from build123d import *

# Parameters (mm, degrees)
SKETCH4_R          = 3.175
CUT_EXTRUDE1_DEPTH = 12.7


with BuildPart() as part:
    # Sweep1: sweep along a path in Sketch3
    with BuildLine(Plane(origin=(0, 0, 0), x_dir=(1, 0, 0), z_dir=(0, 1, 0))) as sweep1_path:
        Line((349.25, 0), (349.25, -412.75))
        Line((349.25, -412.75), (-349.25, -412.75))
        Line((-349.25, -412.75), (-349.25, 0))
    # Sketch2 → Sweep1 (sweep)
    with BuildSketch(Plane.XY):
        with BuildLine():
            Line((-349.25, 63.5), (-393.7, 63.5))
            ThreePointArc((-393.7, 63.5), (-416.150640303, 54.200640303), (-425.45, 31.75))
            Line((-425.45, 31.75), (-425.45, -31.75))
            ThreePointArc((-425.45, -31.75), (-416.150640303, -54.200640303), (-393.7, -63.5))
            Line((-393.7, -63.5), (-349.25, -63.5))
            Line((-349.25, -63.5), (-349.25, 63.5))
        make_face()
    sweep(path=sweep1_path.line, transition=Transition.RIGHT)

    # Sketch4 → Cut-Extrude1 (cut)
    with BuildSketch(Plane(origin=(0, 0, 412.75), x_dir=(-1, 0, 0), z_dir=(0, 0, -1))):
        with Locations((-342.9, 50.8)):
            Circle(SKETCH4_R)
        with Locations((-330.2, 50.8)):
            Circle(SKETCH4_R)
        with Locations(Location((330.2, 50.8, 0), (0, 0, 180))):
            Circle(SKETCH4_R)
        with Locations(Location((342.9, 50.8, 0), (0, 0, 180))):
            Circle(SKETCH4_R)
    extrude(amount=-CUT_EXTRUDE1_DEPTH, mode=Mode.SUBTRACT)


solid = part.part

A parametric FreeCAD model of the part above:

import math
import FreeCAD as App
import Part
import Sketcher
Q = App.Units.Quantity

doc = App.newDocument("Part")
body = doc.addObject("PartDesign::Body", "Body")

sketch1 = body.newObject("Sketcher::SketchObject", "Sketch")
sketch1.AttachmentSupport = (doc.getObject("XY_Plane"), [""])
sketch1.MapMode = "FlatFace"
sketch1.addGeometry(Part.LineSegment(App.Vector(-349, 64, 0), App.Vector(-394, 64, 0)), False)
sketch1.addGeometry(Part.ArcOfCircle(Part.Circle(App.Vector(-394, 32, 0), App.Vector(0, 0, 1), 32), math.radians(90), math.radians(180)), False)
sketch1.addGeometry(Part.LineSegment(App.Vector(-425, 32, 0), App.Vector(-425, -32, 0)), False)
sketch1.addGeometry(Part.ArcOfCircle(Part.Circle(App.Vector(-394, -32, 0), App.Vector(0, 0, 1), 32), math.radians(180), math.radians(270)), False)
sketch1.addGeometry(Part.LineSegment(App.Vector(-394, -64, 0), App.Vector(-349, -64, 0)), False)
sketch1.addGeometry(Part.LineSegment(App.Vector(-349, -64, 0), App.Vector(-349, 64, 0)), False)
sketch1.addConstraint(Sketcher.Constraint("Tangent", 0, 2, 1, 1))
sketch1.addConstraint(Sketcher.Constraint("Tangent", 1, 2, 2, 1))
sketch1.addConstraint(Sketcher.Constraint("Tangent", 2, 2, 3, 1))
sketch1.addConstraint(Sketcher.Constraint("Tangent", 3, 2, 4, 1))
sketch1.addConstraint(Sketcher.Constraint("Coincident", 4, 2, 5, 1))
sketch1.addConstraint(Sketcher.Constraint("Coincident", 5, 2, 0, 1))
sketch1.addConstraint(Sketcher.Constraint("Horizontal", 0))
sketch1.addConstraint(Sketcher.Constraint("Vertical", 2))
sketch1.addConstraint(Sketcher.Constraint("Horizontal", 4))
sketch1.addConstraint(Sketcher.Constraint("Vertical", 5))
sketch1.addConstraint(Sketcher.Constraint("Equal", 1, 3))
sketch1.addConstraint(Sketcher.Constraint("DistanceY", 5, 1, 5, 2, Q("5 in")))
sketch1.addConstraint(Sketcher.Constraint("Radius", 1, Q("1.25 in")))
sketch1.addConstraint(Sketcher.Constraint("DistanceX", 2, 2, 4, 2, Q("3 in")))
sketch1.addConstraint(Sketcher.Constraint("DistanceX", 1, 3, -1, 1, Q("15.5 in")))
sketch1.addConstraint(Sketcher.Constraint("DistanceY", -1, 1, 0, 2, Q("2.5 in")))

sketch2 = body.newObject("Sketcher::SketchObject", "Sketch001")
sketch2.AttachmentSupport = (doc.getObject("XZ_Plane"), [""])
sketch2.MapMode = "FlatFace"
sketch2.addGeometry(Part.LineSegment(App.Vector(349, 0, 0), App.Vector(349, 413, 0)), False)
sketch2.addGeometry(Part.LineSegment(App.Vector(349, 413, 0), App.Vector(-349, 413, 0)), False)
sketch2.addGeometry(Part.LineSegment(App.Vector(-349, 413, 0), App.Vector(-349, 0, 0)), False)
sketch2.addConstraint(Sketcher.Constraint("Coincident", 0, 2, 1, 1))
sketch2.addConstraint(Sketcher.Constraint("Coincident", 1, 2, 2, 1))
sketch2.addConstraint(Sketcher.Constraint("Vertical", 0))
sketch2.addConstraint(Sketcher.Constraint("Horizontal", 1))
sketch2.addConstraint(Sketcher.Constraint("Vertical", 2))
sketch2.addConstraint(Sketcher.Constraint("Symmetric", 0, 1, 2, 2, -1, 1))
sketch2.addConstraint(Sketcher.Constraint("PointOnObject", 0, 1, -1))
sketch2.addConstraint(Sketcher.Constraint("DistanceX", 1, 2, 1, 1, Q("27.5 in")))
sketch2.addConstraint(Sketcher.Constraint("DistanceY", 0, 1, 0, 2, Q("16.25 in")))
doc.recompute()

additivepipe = body.newObject("PartDesign::AdditivePipe", "AdditivePipe")
additivepipe.Profile = sketch1
additivepipe.Spine = (sketch2, ["Edge1", "Edge2", "Edge3"])
additivepipe.Transition = "Right corner"

sketch3 = body.newObject("Sketcher::SketchObject", "Sketch002")
sketch3.AttachmentSupport = (doc.getObject("XY_Plane"), [""])
sketch3.MapMode = "FlatFace"
sketch3.AttachmentOffset = App.Placement(App.Vector(0, 0, 16.25 * 25.4), App.Rotation())
sketch3.addGeometry(Part.Circle(App.Vector(342.9, 50.8, 0), App.Vector(0, 0, 1), 3.2), False)
sketch3.addGeometry(Part.Circle(App.Vector(330.2, 50.8, 0), App.Vector(0, 0, 1), 3.2), False)
sketch3.addGeometry(Part.Circle(App.Vector(-330.2, 50.8, 0), App.Vector(0, 0, 1), 3.2), False)
sketch3.addGeometry(Part.Circle(App.Vector(-342.9, 50.8, 0), App.Vector(0, 0, 1), 3.2), False)
sketch3.addConstraint(Sketcher.Constraint("Equal", 0, 1))
sketch3.addConstraint(Sketcher.Constraint("Equal", 1, 2))
sketch3.addConstraint(Sketcher.Constraint("Equal", 2, 3))
sketch3.addConstraint(Sketcher.Constraint("Symmetric", 1, 3, 2, 3, -2))
sketch3.addConstraint(Sketcher.Constraint("Symmetric", 0, 3, 3, 3, -2))
sketch3.addConstraint(Sketcher.Constraint("Horizontal", 0, 3, 1, 3))
sketch3.addConstraint(Sketcher.Constraint("Diameter", 0, Q("0.25 in")))
sketch3.addConstraint(Sketcher.Constraint("DistanceY", -1, 1, 0, 3, Q("2 in")))
sketch3.addConstraint(Sketcher.Constraint("DistanceX", -1, 1, 1, 3, Q("13 in")))
sketch3.addConstraint(Sketcher.Constraint("DistanceX", 3, 3, 0, 3, Q("27 in")))
pocket1 = body.newObject("PartDesign::Pocket", "Pocket")
pocket1.Profile = sketch3
pocket1.Length = Q("0.5 in")
pocket1.Reversed = True

doc.recompute()
